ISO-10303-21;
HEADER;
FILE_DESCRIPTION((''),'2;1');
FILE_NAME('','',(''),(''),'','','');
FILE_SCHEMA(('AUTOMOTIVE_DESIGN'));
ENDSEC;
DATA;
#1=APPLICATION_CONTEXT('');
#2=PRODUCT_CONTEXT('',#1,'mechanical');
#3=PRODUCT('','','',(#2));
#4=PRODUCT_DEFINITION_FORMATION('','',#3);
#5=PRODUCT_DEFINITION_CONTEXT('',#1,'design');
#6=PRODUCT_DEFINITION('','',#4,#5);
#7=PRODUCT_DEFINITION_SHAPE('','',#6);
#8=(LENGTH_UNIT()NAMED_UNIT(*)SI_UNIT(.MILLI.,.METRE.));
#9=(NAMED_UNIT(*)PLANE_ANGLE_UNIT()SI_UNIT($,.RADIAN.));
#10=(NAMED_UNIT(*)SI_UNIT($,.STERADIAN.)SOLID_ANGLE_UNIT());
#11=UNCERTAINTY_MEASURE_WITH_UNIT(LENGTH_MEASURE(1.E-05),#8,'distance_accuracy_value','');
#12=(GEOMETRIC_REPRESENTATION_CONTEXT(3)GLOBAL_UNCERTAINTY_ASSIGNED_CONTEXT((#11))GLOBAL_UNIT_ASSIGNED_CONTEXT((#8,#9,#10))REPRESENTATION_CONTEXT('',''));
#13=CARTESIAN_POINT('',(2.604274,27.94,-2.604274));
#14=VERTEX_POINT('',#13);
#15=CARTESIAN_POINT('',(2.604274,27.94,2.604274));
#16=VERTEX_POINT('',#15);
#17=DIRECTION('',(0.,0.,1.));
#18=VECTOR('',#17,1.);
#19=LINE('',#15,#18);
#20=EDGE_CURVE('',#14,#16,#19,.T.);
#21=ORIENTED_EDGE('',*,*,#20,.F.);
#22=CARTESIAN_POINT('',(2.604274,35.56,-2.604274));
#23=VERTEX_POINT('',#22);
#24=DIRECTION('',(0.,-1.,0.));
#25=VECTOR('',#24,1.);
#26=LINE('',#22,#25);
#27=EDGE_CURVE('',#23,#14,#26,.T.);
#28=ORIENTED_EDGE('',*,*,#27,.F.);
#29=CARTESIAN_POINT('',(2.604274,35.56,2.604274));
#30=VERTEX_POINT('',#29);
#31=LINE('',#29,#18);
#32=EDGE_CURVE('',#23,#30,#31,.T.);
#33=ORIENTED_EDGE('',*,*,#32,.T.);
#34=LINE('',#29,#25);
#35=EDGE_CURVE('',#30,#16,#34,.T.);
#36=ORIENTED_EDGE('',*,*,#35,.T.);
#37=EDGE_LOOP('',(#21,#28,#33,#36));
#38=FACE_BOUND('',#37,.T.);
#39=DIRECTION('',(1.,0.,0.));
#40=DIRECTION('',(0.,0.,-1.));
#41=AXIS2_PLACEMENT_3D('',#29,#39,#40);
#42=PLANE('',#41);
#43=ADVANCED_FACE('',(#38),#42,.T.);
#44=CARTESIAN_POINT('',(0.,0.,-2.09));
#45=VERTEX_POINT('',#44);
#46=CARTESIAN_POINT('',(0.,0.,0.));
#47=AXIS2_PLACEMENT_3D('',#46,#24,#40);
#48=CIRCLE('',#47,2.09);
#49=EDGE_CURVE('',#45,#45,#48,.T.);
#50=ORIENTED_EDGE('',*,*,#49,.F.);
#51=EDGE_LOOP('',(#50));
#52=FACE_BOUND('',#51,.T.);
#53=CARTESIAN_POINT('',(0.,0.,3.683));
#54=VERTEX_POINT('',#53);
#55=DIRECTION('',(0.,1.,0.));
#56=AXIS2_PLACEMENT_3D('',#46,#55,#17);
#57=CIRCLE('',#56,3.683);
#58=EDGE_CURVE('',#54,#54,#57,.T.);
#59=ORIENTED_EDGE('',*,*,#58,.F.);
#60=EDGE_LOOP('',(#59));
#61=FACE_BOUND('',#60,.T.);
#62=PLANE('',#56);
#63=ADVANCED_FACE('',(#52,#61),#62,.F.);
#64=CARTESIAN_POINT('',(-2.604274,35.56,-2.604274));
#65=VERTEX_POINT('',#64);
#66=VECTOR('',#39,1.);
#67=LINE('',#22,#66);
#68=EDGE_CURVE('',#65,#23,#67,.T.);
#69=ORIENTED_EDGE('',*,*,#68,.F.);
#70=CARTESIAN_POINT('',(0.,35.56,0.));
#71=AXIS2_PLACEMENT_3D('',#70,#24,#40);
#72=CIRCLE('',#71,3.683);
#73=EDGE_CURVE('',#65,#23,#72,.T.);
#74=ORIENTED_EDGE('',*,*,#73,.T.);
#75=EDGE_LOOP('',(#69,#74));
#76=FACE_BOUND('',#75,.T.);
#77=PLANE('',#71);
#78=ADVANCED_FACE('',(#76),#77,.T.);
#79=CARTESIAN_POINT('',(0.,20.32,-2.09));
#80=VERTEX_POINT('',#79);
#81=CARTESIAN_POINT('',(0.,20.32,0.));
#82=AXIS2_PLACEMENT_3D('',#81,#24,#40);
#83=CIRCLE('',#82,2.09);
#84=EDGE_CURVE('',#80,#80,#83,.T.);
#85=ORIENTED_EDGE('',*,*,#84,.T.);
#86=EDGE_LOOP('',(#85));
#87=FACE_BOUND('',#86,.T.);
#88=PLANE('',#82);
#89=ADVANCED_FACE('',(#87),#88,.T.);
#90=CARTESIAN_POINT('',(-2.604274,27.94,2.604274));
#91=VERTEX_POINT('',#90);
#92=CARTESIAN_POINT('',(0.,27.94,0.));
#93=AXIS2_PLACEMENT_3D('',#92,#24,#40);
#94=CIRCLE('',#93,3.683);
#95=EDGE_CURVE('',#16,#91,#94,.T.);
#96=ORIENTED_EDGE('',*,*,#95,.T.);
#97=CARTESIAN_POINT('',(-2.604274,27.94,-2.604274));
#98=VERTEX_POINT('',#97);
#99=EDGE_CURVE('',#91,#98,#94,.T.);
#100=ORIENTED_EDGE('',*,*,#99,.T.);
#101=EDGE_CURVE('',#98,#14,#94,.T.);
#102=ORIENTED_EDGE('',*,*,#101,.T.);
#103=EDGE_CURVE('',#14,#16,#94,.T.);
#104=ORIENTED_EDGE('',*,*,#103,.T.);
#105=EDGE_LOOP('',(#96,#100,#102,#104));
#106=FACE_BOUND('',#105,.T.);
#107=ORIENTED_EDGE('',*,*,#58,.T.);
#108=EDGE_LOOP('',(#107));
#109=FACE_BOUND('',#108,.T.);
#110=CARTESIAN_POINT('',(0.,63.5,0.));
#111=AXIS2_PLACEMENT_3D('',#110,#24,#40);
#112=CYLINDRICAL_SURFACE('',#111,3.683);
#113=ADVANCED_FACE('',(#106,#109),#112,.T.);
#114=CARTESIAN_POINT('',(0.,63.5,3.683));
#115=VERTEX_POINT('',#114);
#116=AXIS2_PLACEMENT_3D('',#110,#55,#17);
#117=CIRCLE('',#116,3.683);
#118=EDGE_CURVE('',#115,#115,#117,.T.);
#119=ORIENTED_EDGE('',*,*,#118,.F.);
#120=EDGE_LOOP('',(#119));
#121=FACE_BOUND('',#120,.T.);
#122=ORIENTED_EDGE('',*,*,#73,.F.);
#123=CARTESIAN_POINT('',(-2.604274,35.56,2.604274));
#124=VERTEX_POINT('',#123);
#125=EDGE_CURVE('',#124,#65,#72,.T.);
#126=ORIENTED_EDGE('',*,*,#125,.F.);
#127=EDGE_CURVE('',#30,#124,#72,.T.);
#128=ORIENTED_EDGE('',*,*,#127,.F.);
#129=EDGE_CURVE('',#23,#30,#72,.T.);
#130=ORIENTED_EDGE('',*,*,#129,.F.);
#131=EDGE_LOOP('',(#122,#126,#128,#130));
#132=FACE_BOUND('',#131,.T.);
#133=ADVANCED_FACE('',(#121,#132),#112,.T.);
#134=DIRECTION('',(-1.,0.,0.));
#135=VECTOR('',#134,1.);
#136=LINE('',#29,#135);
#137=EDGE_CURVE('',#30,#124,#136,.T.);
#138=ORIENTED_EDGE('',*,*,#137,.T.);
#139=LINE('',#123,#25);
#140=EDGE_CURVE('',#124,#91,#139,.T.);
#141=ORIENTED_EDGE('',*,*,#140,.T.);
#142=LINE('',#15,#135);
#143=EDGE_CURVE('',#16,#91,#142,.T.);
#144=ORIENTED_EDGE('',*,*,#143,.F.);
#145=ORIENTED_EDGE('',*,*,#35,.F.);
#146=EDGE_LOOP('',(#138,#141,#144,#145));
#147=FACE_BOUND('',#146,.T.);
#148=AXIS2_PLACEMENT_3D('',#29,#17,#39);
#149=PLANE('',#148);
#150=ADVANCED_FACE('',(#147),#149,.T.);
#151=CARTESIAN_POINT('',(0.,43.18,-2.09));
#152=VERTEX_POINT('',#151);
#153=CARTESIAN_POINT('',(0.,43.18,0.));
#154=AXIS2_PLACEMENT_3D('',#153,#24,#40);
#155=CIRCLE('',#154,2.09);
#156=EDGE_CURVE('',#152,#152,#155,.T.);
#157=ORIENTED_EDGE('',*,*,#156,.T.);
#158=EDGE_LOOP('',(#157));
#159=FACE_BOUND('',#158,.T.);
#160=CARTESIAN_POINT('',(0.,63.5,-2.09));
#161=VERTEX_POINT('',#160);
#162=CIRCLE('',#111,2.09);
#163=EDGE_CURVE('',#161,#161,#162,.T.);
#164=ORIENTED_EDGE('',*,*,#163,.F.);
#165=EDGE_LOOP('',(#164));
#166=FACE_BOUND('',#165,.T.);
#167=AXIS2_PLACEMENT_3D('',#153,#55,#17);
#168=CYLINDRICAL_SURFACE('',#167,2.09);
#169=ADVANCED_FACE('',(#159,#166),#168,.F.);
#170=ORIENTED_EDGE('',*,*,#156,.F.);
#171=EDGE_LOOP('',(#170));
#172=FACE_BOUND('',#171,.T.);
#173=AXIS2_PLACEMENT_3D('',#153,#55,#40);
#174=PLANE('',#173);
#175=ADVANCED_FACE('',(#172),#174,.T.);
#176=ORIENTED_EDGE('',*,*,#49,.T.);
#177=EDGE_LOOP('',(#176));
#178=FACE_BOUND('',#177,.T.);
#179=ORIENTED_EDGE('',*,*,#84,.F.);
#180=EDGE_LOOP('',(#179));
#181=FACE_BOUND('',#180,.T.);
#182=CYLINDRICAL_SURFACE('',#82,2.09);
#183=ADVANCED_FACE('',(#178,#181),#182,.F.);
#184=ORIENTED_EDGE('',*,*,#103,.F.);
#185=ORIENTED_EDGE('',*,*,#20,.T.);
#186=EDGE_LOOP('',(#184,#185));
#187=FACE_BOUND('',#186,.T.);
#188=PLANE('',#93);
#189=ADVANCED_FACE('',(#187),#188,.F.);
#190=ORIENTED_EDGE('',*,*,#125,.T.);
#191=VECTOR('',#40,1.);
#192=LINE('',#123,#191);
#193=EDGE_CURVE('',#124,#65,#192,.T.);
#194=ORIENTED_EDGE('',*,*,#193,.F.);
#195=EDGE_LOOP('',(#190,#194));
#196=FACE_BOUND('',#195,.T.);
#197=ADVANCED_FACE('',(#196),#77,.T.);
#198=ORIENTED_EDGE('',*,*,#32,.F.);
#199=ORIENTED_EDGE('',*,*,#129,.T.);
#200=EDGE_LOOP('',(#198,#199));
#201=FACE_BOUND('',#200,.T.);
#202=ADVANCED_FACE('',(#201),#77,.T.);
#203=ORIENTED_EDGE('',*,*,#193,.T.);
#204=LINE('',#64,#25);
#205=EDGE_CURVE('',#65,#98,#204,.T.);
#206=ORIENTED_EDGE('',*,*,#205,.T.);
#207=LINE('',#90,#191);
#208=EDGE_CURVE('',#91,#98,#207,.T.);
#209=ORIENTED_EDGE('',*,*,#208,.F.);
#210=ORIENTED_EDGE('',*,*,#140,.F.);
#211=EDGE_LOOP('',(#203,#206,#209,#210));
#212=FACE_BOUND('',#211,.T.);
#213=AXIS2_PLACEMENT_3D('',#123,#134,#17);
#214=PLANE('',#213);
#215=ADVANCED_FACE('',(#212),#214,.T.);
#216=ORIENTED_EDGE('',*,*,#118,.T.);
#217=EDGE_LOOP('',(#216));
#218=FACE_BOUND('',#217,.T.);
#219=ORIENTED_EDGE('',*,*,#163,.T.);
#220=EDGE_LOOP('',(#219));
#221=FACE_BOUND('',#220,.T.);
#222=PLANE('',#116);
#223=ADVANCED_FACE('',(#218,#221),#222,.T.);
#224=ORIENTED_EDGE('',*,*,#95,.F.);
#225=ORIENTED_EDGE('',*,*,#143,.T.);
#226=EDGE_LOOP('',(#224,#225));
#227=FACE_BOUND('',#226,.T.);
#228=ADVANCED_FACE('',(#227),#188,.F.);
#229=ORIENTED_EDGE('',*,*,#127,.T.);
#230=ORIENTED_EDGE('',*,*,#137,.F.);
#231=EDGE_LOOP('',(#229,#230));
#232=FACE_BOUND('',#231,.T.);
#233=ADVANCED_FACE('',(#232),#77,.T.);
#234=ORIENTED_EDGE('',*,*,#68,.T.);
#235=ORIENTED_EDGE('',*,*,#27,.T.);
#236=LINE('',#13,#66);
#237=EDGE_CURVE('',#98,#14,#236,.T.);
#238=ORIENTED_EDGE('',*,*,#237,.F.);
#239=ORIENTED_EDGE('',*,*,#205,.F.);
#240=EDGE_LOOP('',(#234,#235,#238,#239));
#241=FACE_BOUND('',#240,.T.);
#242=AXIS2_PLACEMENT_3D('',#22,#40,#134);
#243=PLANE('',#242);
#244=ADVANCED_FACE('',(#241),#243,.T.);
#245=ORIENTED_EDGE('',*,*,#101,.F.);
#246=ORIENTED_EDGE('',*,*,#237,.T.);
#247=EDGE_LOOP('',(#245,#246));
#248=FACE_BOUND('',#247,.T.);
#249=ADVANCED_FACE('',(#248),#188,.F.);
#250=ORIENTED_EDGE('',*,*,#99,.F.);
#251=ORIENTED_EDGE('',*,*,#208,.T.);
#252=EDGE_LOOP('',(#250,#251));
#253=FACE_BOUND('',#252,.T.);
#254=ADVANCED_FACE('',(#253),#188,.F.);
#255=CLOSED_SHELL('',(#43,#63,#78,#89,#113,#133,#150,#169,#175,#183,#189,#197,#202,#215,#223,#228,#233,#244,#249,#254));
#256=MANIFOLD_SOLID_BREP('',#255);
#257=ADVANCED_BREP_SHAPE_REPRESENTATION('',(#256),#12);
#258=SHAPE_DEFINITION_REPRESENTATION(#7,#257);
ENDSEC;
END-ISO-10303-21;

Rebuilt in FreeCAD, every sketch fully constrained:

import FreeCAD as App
import Part
import Sketcher
Q = App.Units.Quantity


def add_polygon(sketch, points):
    """Adds a closed chain of lines whose ends are joined by coincident constraints."""
    first, n = sketch.GeometryCount, len(points)
    for a, b in zip(points, points[1:] + points[:1]):
        sketch.addGeometry(Part.LineSegment(App.Vector(*a, 0), App.Vector(*b, 0)), False)
    for i in range(n):
        sketch.addConstraint(Sketcher.Constraint("Coincident", first + i, 2, first + (i + 1) % n, 1))

doc = App.newDocument("Part")
body = doc.addObject("PartDesign::Body", "Body")

# Sketch on XZ plane
sketch1 = body.newObject("Sketcher::SketchObject", "Sketch")
sketch1.AttachmentSupport = (doc.getObject("XZ_Plane"), [""])
sketch1.MapMode = "FlatFace"
sketch1.addGeometry(Part.Circle(App.Vector(0, 0, 0), App.Vector(0, 0, 1), 3.7), False)
sketch1.addConstraint([
    Sketcher.Constraint("Coincident", 0, 3, -1, 1),
    Sketcher.Constraint("Diameter", 0, Q("0.29 in")),
])
pad1 = body.newObject("PartDesign::Pad", "Pad")
pad1.Profile = sketch1
pad1.Length = Q("2.5 in")
pad1.Reversed = True

# Sketch on XZ plane
sketch2 = body.newObject("Sketcher::SketchObject", "Sketch001")
sketch2.AttachmentSupport = (doc.getObject("XZ_Plane"), [""])
sketch2.MapMode = "FlatFace"
sketch2.addGeometry(Part.Circle(App.Vector(0, 0, 0), App.Vector(0, 0, 1), 2.1), False)
sketch2.addConstraint([
    Sketcher.Constraint("Coincident", 0, 3, -1, 1),
    Sketcher.Constraint("Diameter", 0, Q("4.18 mm")),
])
pocket1 = body.newObject("PartDesign::Pocket", "Pocket")
pocket1.Profile = sketch2
pocket1.Length = Q("0.8 in")
doc.recompute()

datumplane = body.newObject("PartDesign::Plane", "DatumPlane")
datumplane.AttachmentSupport = (doc.getObject("XZ_Plane"), [""])
datumplane.MapMode = "FlatFace"
datumplane.AttachmentOffset = App.Placement(App.Vector(0, 0, -1.25 * 25.4), App.Rotation())
mirrored = body.newObject("PartDesign::Mirrored", "Mirrored")
mirrored.Originals = [pocket1]
mirrored.MirrorPlane = (datumplane, [""])
body.Tip = mirrored

# Sketch on XZ plane
sketch3 = body.newObject("Sketcher::SketchObject", "Sketch002")
sketch3.AttachmentSupport = (doc.getObject("XZ_Plane"), [""])
sketch3.MapMode = "FlatFace"
sketch3.AttachmentOffset = App.Placement(App.Vector(0, 0, -1.25 * 25.4), App.Rotation())
add_polygon(sketch3, [(11, -11), (11, 11), (-11, 11), (-11, -11)])  # lines 0-3
add_polygon(sketch3, [(-3, 3), (3, 3), (3, -3), (-3, -3)])  # lines 4-7
sketch3.addConstraint([
    Sketcher.Constraint("Vertical", 0),
    Sketcher.Constraint("Horizontal", 1),
    Sketcher.Constraint("Vertical", 2),
    Sketcher.Constraint("Horizontal", 3),
    Sketcher.Constraint("Horizontal", 4),
    Sketcher.Constraint("Vertical", 5),
    Sketcher.Constraint("Horizontal", 6),
    Sketcher.Constraint("Vertical", 7),
    Sketcher.Constraint("Symmetric", 0, 2, 2, 2, -1, 1),
    Sketcher.Constraint("Symmetric", 4, 2, 6, 2, -1, 1),
    Sketcher.Constraint("Equal", 3, 0),
    Sketcher.Constraint("Equal", 6, 5),
    Sketcher.Constraint("DistanceX", 1, 2, 1, 1, Q("22.236 mm")),
    Sketcher.Constraint("DistanceX", 4, 1, 4, 2, Q("5.208549 mm")),
])
pocket2 = body.newObject("PartDesign::Pocket", "Pocket001")
pocket2.Profile = sketch3
pocket2.Length = Q("0.3 in")
pocket2.Midplane = True

doc.recompute()
